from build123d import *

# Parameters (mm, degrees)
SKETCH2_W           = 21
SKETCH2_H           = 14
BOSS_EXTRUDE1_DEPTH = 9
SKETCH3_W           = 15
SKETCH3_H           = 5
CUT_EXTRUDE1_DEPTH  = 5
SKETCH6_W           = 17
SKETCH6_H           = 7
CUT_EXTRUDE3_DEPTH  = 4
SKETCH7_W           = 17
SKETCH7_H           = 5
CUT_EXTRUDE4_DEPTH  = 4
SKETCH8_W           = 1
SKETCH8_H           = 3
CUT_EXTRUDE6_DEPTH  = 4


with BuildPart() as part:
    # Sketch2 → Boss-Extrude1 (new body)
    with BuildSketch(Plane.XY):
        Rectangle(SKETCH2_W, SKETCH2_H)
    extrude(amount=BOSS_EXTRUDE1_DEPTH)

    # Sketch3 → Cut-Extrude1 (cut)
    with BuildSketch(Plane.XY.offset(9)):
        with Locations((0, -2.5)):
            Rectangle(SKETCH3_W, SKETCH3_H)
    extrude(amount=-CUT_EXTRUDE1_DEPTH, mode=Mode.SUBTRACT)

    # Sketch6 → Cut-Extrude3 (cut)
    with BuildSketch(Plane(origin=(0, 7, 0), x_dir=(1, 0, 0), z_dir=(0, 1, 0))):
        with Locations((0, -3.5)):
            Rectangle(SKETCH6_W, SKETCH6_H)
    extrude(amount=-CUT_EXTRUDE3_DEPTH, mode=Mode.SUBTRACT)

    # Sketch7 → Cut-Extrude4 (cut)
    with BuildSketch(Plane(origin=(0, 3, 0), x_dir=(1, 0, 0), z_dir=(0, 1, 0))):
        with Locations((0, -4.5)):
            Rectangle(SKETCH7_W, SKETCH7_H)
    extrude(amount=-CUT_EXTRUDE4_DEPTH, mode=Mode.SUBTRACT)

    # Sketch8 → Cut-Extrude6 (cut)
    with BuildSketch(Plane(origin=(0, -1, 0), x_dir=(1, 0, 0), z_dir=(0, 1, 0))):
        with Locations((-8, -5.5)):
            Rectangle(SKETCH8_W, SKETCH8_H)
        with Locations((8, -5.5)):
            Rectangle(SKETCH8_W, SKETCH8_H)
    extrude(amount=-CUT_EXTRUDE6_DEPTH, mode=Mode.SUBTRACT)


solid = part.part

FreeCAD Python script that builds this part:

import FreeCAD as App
import Part
import Sketcher
from FreeCAD import Vector
Q = App.Units.Quantity

doc = App.newDocument("Part")
params = doc.addObject("Spreadsheet::Sheet", "Params")
for row, (alias, value) in enumerate([
    ("sketch1_width", "21 mm"),
    ("sketch1_height", "14 mm"),
    ("pad1_length", "9 mm"),
    ("sketch2_width", "15 mm"),
    ("sketch2_height", "5 mm"),
    ("pocket1_length", "5 mm"),
    ("sketch3_width", "17 mm"),
    ("sketch3_height", "7 mm"),
    ("pocket2_length", "4 mm"),
    ("sketch4_width", "17 mm"),
    ("sketch4_height", "5 mm"),
    ("pocket3_length", "4 mm"),
    ("sketch5_width", "1 mm"),
    ("sketch5_height", "3 mm"),
    ("pocket4_length", "4 mm"),
], start=1):
    params.set(f"A{row}", alias)
    params.set(f"B{row}", "=" + value)
    params.setAlias(f"B{row}", alias)

body = doc.addObject("PartDesign::Body", "Body")

# Sketch on XY plane
sketch1 = body.newObject("Sketcher::SketchObject", "Sketch")
sketch1.AttachmentSupport = (doc.getObject("XY_Plane"), [""])
sketch1.MapMode = "FlatFace"
sketch1.addGeometry(Part.LineSegment(Vector(-10, 7, 0), Vector(-10, -7, 0)), False)
sketch1.addGeometry(Part.LineSegment(Vector(-10, -7, 0), Vector(10, -7, 0)), False)
sketch1.addGeometry(Part.LineSegment(Vector(10, -7, 0), Vector(10, 7, 0)), False)
sketch1.addGeometry(Part.LineSegment(Vector(10, 7, 0), Vector(-10, 7, 0)), False)
sketch1.addConstraint(Sketcher.Constraint("Coincident", 0, 2, 1, 1))
sketch1.addConstraint(Sketcher.Constraint("Coincident", 1, 2, 2, 1))
sketch1.addConstraint(Sketcher.Constraint("Coincident", 2, 2, 3, 1))
sketch1.addConstraint(Sketcher.Constraint("Coincident", 3, 2, 0, 1))
sketch1.addConstraint(Sketcher.Constraint("Vertical", 0))
sketch1.addConstraint(Sketcher.Constraint("Horizontal", 1))
sketch1.addConstraint(Sketcher.Constraint("Vertical", 2))
sketch1.addConstraint(Sketcher.Constraint("Horizontal", 3))
sketch1.addConstraint(Sketcher.Constraint("Symmetric", 0, 2, 2, 2, -1, 1))
sketch1.addConstraint(Sketcher.Constraint("DistanceX", 1, 1, 1, 2, Q("21 mm")))
sketch1.addConstraint(Sketcher.Constraint("DistanceY", 0, 2, 0, 1, Q("14 mm")))
sketch1.setExpression("Constraints[9]", "Params.sketch1_width")
sketch1.setExpression("Constraints[10]", "Params.sketch1_height")
pad1 = body.newObject("PartDesign::Pad", "Pad")
pad1.Profile = sketch1
pad1.setExpression("Length", "Params.pad1_length")

# Sketch on XY plane
sketch2 = body.newObject("Sketcher::SketchObject", "Sketch001")
sketch2.AttachmentSupport = (doc.getObject("XY_Plane"), [""])
sketch2.MapMode = "FlatFace"
sketch2.AttachmentOffset = App.Placement(Vector(0, 0, 9), App.Rotation())
sketch2.addGeometry(Part.LineSegment(Vector(-8, 0, 0), Vector(-8, -5, 0)), False)
sketch2.addGeometry(Part.LineSegment(Vector(-8, -5, 0), Vector(8, -5, 0)), False)
sketch2.addGeometry(Part.LineSegment(Vector(8, -5, 0), Vector(8, 0, 0)), False)
sketch2.addGeometry(Part.LineSegment(Vector(8, 0, 0), Vector(-8, 0, 0)), False)
sketch2.addConstraint(Sketcher.Constraint("Coincident", 0, 2, 1, 1))
sketch2.addConstraint(Sketcher.Constraint("Coincident", 1, 2, 2, 1))
sketch2.addConstraint(Sketcher.Constraint("Coincident", 2, 2, 3, 1))
sketch2.addConstraint(Sketcher.Constraint("Coincident", 3, 2, 0, 1))
sketch2.addConstraint(Sketcher.Constraint("Vertical", 0))
sketch2.addConstraint(Sketcher.Constraint("Horizontal", 1))
sketch2.addConstraint(Sketcher.Constraint("Vertical", 2))
sketch2.addConstraint(Sketcher.Constraint("Horizontal", 3))
sketch2.addConstraint(Sketcher.Constraint("Symmetric", 2, 2, 3, 2, -1, 1))
sketch2.addConstraint(Sketcher.Constraint("DistanceX", 1, 1, 1, 2, Q("15 mm")))
sketch2.addConstraint(Sketcher.Constraint("DistanceY", 0, 2, 0, 1, Q("5 mm")))
sketch2.setExpression("Constraints[9]", "Params.sketch2_width")
sketch2.setExpression("Constraints[10]", "Params.sketch2_height")
pocket1 = body.newObject("PartDesign::Pocket", "Pocket")
pocket1.Profile = sketch2
pocket1.setExpression("Length", "Params.pocket1_length")

# Sketch on XZ plane
sketch3 = body.newObject("Sketcher::SketchObject", "Sketch002")
sketch3.AttachmentSupport = (doc.getObject("XZ_Plane"), [""])
sketch3.MapMode = "FlatFace"
sketch3.AttachmentOffset = App.Placement(Vector(0, 0, -7), App.Rotation())
sketch3.addGeometry(Part.LineSegment(Vector(-8, 0, 0), Vector(-8, 7, 0)), False)
sketch3.addGeometry(Part.LineSegment(Vector(-8, 7, 0), Vector(8, 7, 0)), False)
sketch3.addGeometry(Part.LineSegment(Vector(8, 7, 0), Vector(8, 0, 0)), False)
sketch3.addGeometry(Part.LineSegment(Vector(8, 0, 0), Vector(-8, 0, 0)), False)
sketch3.addConstraint(Sketcher.Constraint("Coincident", 0, 2, 1, 1))
sketch3.addConstraint(Sketcher.Constraint("Coincident", 1, 2, 2, 1))
sketch3.addConstraint(Sketcher.Constraint("Coincident", 2, 2, 3, 1))
sketch3.addConstraint(Sketcher.Constraint("Coincident", 3, 2, 0, 1))
sketch3.addConstraint(Sketcher.Constraint("Vertical", 0))
sketch3.addConstraint(Sketcher.Constraint("Horizontal", 1))
sketch3.addConstraint(Sketcher.Constraint("Vertical", 2))
sketch3.addConstraint(Sketcher.Constraint("Horizontal", 3))
sketch3.addConstraint(Sketcher.Constraint("Symmetric", 2, 2, 3, 2, -1, 1))
sketch3.addConstraint(Sketcher.Constraint("DistanceX", 1, 1, 1, 2, Q("17 mm")))
sketch3.addConstraint(Sketcher.Constraint("DistanceY", 0, 1, 0, 2, Q("7 mm")))
sketch3.setExpression("Constraints[9]", "Params.sketch3_width")
sketch3.setExpression("Constraints[10]", "Params.sketch3_height")
pocket2 = body.newObject("PartDesign::Pocket", "Pocket001")
pocket2.Profile = sketch3
pocket2.setExpression("Length", "Params.pocket2_length")
pocket2.Reversed = True

# Sketch on XZ plane
sketch4 = body.newObject("Sketcher::SketchObject", "Sketch003")
sketch4.AttachmentSupport = (doc.getObject("XZ_Plane"), [""])
sketch4.MapMode = "FlatFace"
sketch4.AttachmentOffset = App.Placement(Vector(0, 0, -3), App.Rotation())
sketch4.addGeometry(Part.LineSegment(Vector(-8, 2, 0), Vector(-8, 7, 0)), False)
sketch4.addGeometry(Part.LineSegment(Vector(-8, 7, 0), Vector(8, 7, 0)), False)
sketch4.addGeometry(Part.LineSegment(Vector(8, 7, 0), Vector(8, 2, 0)), False)
sketch4.addGeometry(Part.LineSegment(Vector(8, 2, 0), Vector(-8, 2, 0)), False)
sketch4.addConstraint(Sketcher.Constraint("Coincident", 0, 2, 1, 1))
sketch4.addConstraint(Sketcher.Constraint("Coincident", 1, 2, 2, 1))
sketch4.addConstraint(Sketcher.Constraint("Coincident", 2, 2, 3, 1))
sketch4.addConstraint(Sketcher.Constraint("Coincident", 3, 2, 0, 1))
sketch4.addConstraint(Sketcher.Constraint("Vertical", 0))
sketch4.addConstraint(Sketcher.Constraint("Horizontal", 1))
sketch4.addConstraint(Sketcher.Constraint("Vertical", 2))
sketch4.addConstraint(Sketcher.Constraint("Horizontal", 3))
sketch4.addConstraint(Sketcher.Constraint("DistanceX", 1, 1, 1, 2, Q("17 mm")))
sketch4.addConstraint(Sketcher.Constraint("DistanceY", 0, 1, 0, 2, Q("5 mm")))
sketch4.addConstraint(Sketcher.Constraint("DistanceY", -1, 1, 0, 2, Q("7 mm")))
sketch4.addConstraint(Sketcher.Constraint("DistanceX", 0, 2, -1, 1, Q("8.5 mm")))
sketch4.setExpression("Constraints[8]", "Params.sketch4_width")
sketch4.setExpression("Constraints[9]", "Params.sketch4_height")
pocket3 = body.newObject("PartDesign::Pocket", "Pocket002")
pocket3.Profile = sketch4
pocket3.setExpression("Length", "Params.pocket3_length")
pocket3.Reversed = True

# Sketch on XZ plane
sketch5 = body.newObject("Sketcher::SketchObject", "Sketch004")
sketch5.AttachmentSupport = (doc.getObject("XZ_Plane"), [""])
sketch5.MapMode = "FlatFace"
sketch5.AttachmentOffset = App.Placement(Vector(0, 0, 1), App.Rotation())
sketch5.addGeometry(Part.LineSegment(Vector(-8.5, 4, 0), Vector(-8.5, 7, 0)), False)
sketch5.addGeometry(Part.LineSegment(Vector(-8.5, 7, 0), Vector(-7.5, 7, 0)), False)
sketch5.addGeometry(Part.LineSegment(Vector(-7.5, 7, 0), Vector(-7.5, 4, 0)), False)
sketch5.addGeometry(Part.LineSegment(Vector(-7.5, 4, 0), Vector(-8.5, 4, 0)), False)
sketch5.addGeometry(Part.LineSegment(Vector(7.5, 4, 0), Vector(7.5, 7, 0)), False)
sketch5.addGeometry(Part.LineSegment(Vector(7.5, 7, 0), Vector(8.5, 7, 0)), False)
sketch5.addGeometry(Part.LineSegment(Vector(8.5, 7, 0), Vector(8.5, 4, 0)), False)
sketch5.addGeometry(Part.LineSegment(Vector(8.5, 4, 0), Vector(7.5, 4, 0)), False)
sketch5.addConstraint(Sketcher.Constraint("Coincident", 0, 2, 1, 1))
sketch5.addConstraint(Sketcher.Constraint("Coincident", 1, 2, 2, 1))
sketch5.addConstraint(Sketcher.Constraint("Coincident", 2, 2, 3, 1))
sketch5.addConstraint(Sketcher.Constraint("Coincident", 3, 2, 0, 1))
sketch5.addConstraint(Sketcher.Constraint("Coincident", 4, 2, 5, 1))
sketch5.addConstraint(Sketcher.Constraint("Coincident", 5, 2, 6, 1))
sketch5.addConstraint(Sketcher.Constraint("Coincident", 6, 2, 7, 1))
sketch5.addConstraint(Sketcher.Constraint("Coincident", 7, 2, 4, 1))
sketch5.addConstraint(Sketcher.Constraint("Vertical", 0))
sketch5.addConstraint(Sketcher.Constraint("Horizontal", 1))
sketch5.addConstraint(Sketcher.Constraint("Vertical", 2))
sketch5.addConstraint(Sketcher.Constraint("Horizontal", 3))
sketch5.addConstraint(Sketcher.Constraint("Vertical", 4))
sketch5.addConstraint(Sketcher.Constraint("Horizontal", 5))
sketch5.addConstraint(Sketcher.Constraint("Vertical", 6))
sketch5.addConstraint(Sketcher.Constraint("Horizontal", 7))
sketch5.addConstraint(Sketcher.Constraint("Symmetric", 1, 2, 4, 2, -2))
sketch5.addConstraint(Sketcher.Constraint("Symmetric", 3, 2, 6, 2, -2))
sketch5.addConstraint(Sketcher.Constraint("DistanceX", 1, 1, 1, 2, Q("1 mm")))
sketch5.addConstraint(Sketcher.Constraint("DistanceY", 0, 1, 0, 2, Q("3 mm")))
sketch5.addConstraint(Sketcher.Constraint("DistanceY", -1, 1, 0, 2, Q("7 mm")))
sketch5.addConstraint(Sketcher.Constraint("DistanceX", 1, 2, 4, 2, Q("15 mm")))
sketch5.setExpression("Constraints[18]", "Params.sketch5_width")
sketch5.setExpression("Constraints[19]", "Params.sketch5_height")
pocket4 = body.newObject("PartDesign::Pocket", "Pocket003")
pocket4.Profile = sketch5
pocket4.setExpression("Length", "Params.pocket4_length")
pocket4.Reversed = True

doc.recompute()
